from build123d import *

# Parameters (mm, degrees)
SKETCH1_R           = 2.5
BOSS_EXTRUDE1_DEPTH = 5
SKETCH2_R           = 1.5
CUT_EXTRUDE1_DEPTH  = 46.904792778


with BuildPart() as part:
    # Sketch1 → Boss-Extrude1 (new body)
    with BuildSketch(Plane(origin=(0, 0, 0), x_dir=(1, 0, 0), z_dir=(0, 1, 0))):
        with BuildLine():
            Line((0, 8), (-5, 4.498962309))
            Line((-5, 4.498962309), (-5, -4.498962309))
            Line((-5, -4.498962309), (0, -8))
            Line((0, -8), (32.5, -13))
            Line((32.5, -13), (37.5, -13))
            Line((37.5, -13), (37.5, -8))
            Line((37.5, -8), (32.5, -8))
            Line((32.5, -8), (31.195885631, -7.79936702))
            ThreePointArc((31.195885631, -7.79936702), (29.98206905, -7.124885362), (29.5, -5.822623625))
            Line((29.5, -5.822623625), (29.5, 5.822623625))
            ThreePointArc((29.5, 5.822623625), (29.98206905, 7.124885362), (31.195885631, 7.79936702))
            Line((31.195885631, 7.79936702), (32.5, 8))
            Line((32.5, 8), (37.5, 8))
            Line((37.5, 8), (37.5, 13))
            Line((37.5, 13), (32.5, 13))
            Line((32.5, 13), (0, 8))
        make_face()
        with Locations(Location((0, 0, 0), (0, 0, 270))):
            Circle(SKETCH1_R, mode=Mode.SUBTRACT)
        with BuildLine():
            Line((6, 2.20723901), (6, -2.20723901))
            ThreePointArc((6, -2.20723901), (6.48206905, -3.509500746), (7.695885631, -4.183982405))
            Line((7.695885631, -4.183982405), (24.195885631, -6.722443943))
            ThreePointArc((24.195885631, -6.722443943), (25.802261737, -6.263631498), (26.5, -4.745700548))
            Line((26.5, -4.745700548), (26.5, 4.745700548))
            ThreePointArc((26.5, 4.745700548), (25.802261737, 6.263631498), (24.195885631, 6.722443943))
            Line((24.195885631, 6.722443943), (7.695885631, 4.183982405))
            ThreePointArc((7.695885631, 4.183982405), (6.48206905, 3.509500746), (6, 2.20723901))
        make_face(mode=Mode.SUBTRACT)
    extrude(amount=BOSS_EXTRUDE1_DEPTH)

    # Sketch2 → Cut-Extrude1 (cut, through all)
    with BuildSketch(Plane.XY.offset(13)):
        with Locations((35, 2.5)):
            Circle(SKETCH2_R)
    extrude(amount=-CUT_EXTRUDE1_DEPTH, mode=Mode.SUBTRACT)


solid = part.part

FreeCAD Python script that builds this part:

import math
import FreeCAD as App
import Part
import Sketcher
Q = App.Units.Quantity

doc = App.newDocument("Part")
body = doc.addObject("PartDesign::Body", "Body")

# Sketch on XZ plane
sketch1 = body.newObject("Sketcher::SketchObject", "Sketch")
sketch1.AttachmentSupport = (doc.getObject("XZ_Plane"), [""])
sketch1.MapMode = "FlatFace"
sketch1.addGeometry(Part.LineSegment(App.Vector(0, -8, 0), App.Vector(-5, -4.5, 0)), False)
sketch1.addGeometry(Part.LineSegment(App.Vector(-5, -4.5, 0), App.Vector(-5, 4.5, 0)), False)
sketch1.addGeometry(Part.LineSegment(App.Vector(-5, 4.5, 0), App.Vector(0, 8, 0)), False)
sketch1.addGeometry(Part.LineSegment(App.Vector(0, 8, 0), App.Vector(32.5, 13, 0)), False)
sketch1.addGeometry(Part.LineSegment(App.Vector(32.5, 13, 0), App.Vector(37.5, 13, 0)), False)
sketch1.addGeometry(Part.LineSegment(App.Vector(37.5, 13, 0), App.Vector(37.5, 8, 0)), False)
sketch1.addGeometry(Part.LineSegment(App.Vector(37.5, 8, 0), App.Vector(32.5, 8, 0)), False)
sketch1.addGeometry(Part.LineSegment(App.Vector(32.5, 8, 0), App.Vector(31.2, 7.8, 0)), False)
sketch1.addGeometry(Part.ArcOfCircle(Part.Circle(App.Vector(31.5, 5.8, 0), App.Vector(0, 0, 1), 2), math.radians(99), math.radians(180)), False)
sketch1.addGeometry(Part.LineSegment(App.Vector(29.5, 5.8, 0), App.Vector(29.5, -5.8, 0)), False)
sketch1.addGeometry(Part.ArcOfCircle(Part.Circle(App.Vector(31.5, -5.8, 0), App.Vector(0, 0, 1), 2), math.radians(180), math.radians(261)), False)
sketch1.addGeometry(Part.LineSegment(App.Vector(31.2, -7.8, 0), App.Vector(32.5, -8, 0)), False)
sketch1.addGeometry(Part.LineSegment(App.Vector(32.5, -8, 0), App.Vector(37.5, -8, 0)), False)
sketch1.addGeometry(Part.LineSegment(App.Vector(37.5, -8, 0), App.Vector(37.5, -13, 0)), False)
sketch1.addGeometry(Part.LineSegment(App.Vector(37.5, -13, 0), App.Vector(32.5, -13, 0)), False)
sketch1.addGeometry(Part.LineSegment(App.Vector(32.5, -13, 0), App.Vector(0, -8, 0)), False)
sketch1.addGeometry(Part.Circle(App.Vector(0, 0, 0), App.Vector(0, 0, 1), 2.5), False)
sketch1.addGeometry(Part.LineSegment(App.Vector(6, 2.2, 0), App.Vector(6, -2.2, 0)), False)
sketch1.addGeometry(Part.ArcOfCircle(Part.Circle(App.Vector(8, -2.2, 0), App.Vector(0, 0, 1), 2), math.radians(-180), math.radians(-99)), False)
sketch1.addGeometry(Part.LineSegment(App.Vector(7.7, -4.2, 0), App.Vector(24.2, -6.7, 0)), False)
sketch1.addGeometry(Part.ArcOfCircle(Part.Circle(App.Vector(24.5, -4.7, 0), App.Vector(0, 0, 1), 2), math.radians(-99), math.radians(0)), False)
sketch1.addGeometry(Part.LineSegment(App.Vector(26.5, -4.7, 0), App.Vector(26.5, 4.7, 0)), False)
sketch1.addGeometry(Part.ArcOfCircle(Part.Circle(App.Vector(24.5, 4.7, 0), App.Vector(0, 0, 1), 2), math.radians(0), math.radians(99)), False)
sketch1.addGeometry(Part.LineSegment(App.Vector(24.2, 6.7, 0), App.Vector(7.7, 4.2, 0)), False)
sketch1.addGeometry(Part.ArcOfCircle(Part.Circle(App.Vector(8, 2.2, 0), App.Vector(0, 0, 1), 2), math.radians(99), math.radians(180)), False)
sketch1.addConstraint(Sketcher.Constraint("Coincident", 0, 2, 1, 1))
sketch1.addConstraint(Sketcher.Constraint("Coincident", 1, 2, 2, 1))
sketch1.addConstraint(Sketcher.Constraint("Coincident", 2, 2, 3, 1))
sketch1.addConstraint(Sketcher.Constraint("Coincident", 3, 2, 4, 1))
sketch1.addConstraint(Sketcher.Constraint("Coincident", 4, 2, 5, 1))
sketch1.addConstraint(Sketcher.Constraint("Coincident", 5, 2, 6, 1))
sketch1.addConstraint(Sketcher.Constraint("Coincident", 6, 2, 7, 1))
sketch1.addConstraint(Sketcher.Constraint("Tangent", 7, 2, 8, 1))
sketch1.addConstraint(Sketcher.Constraint("Tangent", 8, 2, 9, 1))
sketch1.addConstraint(Sketcher.Constraint("Tangent", 9, 2, 10, 1))
sketch1.addConstraint(Sketcher.Constraint("Tangent", 10, 2, 11, 1))
sketch1.addConstraint(Sketcher.Constraint("Coincident", 11, 2, 12, 1))
sketch1.addConstraint(Sketcher.Constraint("Coincident", 12, 2, 13, 1))
sketch1.addConstraint(Sketcher.Constraint("Coincident", 13, 2, 14, 1))
sketch1.addConstraint(Sketcher.Constraint("Coincident", 14, 2, 15, 1))
sketch1.addConstraint(Sketcher.Constraint("Coincident", 15, 2, 0, 1))
sketch1.addConstraint(Sketcher.Constraint("Tangent", 17, 2, 18, 1))
sketch1.addConstraint(Sketcher.Constraint("Tangent", 18, 2, 19, 1))
sketch1.addConstraint(Sketcher.Constraint("Tangent", 19, 2, 20, 1))
sketch1.addConstraint(Sketcher.Constraint("Tangent", 20, 2, 21, 1))
sketch1.addConstraint(Sketcher.Constraint("Tangent", 21, 2, 22, 1))
sketch1.addConstraint(Sketcher.Constraint("Tangent", 22, 2, 23, 1))
sketch1.addConstraint(Sketcher.Constraint("Tangent", 23, 2, 24, 1))
sketch1.addConstraint(Sketcher.Constraint("Tangent", 24, 2, 17, 1))
sketch1.addConstraint(Sketcher.Constraint("Vertical", 1))
sketch1.addConstraint(Sketcher.Constraint("Horizontal", 4))
sketch1.addConstraint(Sketcher.Constraint("Vertical", 5))
sketch1.addConstraint(Sketcher.Constraint("Horizontal", 6))
sketch1.addConstraint(Sketcher.Constraint("Vertical", 9))
sketch1.addConstraint(Sketcher.Constraint("Horizontal", 12))
sketch1.addConstraint(Sketcher.Constraint("Vertical", 13))
sketch1.addConstraint(Sketcher.Constraint("Horizontal", 14))
sketch1.addConstraint(Sketcher.Constraint("Vertical", 17))
sketch1.addConstraint(Sketcher.Constraint("Vertical", 21))
sketch1.addConstraint(Sketcher.Constraint("Coincident", 16, 3, -1, 1))
sketch1.addConstraint(Sketcher.Constraint("Equal", 8, 10))
sketch1.addConstraint(Sketcher.Constraint("Equal", 10, 18))
sketch1.addConstraint(Sketcher.Constraint("Equal", 18, 20))
sketch1.addConstraint(Sketcher.Constraint("Equal", 20, 22))
sketch1.addConstraint(Sketcher.Constraint("Equal", 22, 24))
sketch1.addConstraint(Sketcher.Constraint("Symmetric", 2, 2, 15, 2, -1, 1))
sketch1.addConstraint(Sketcher.Constraint("Symmetric", 7, 2, 10, 2, -1))
sketch1.addConstraint(Sketcher.Constraint("Symmetric", 5, 2, 12, 2, -1))
sketch1.addConstraint(Sketcher.Constraint("Symmetric", 3, 2, 14, 2, -1))
sketch1.addConstraint(Sketcher.Constraint("Symmetric", 19, 2, 22, 2, -1))
sketch1.addConstraint(Sketcher.Constraint("PointOnObject", 2, 2, -2))
sketch1.addConstraint(Sketcher.Constraint("Parallel", 3, 7))
sketch1.addConstraint(Sketcher.Constraint("Parallel", 15, 19))
sketch1.addConstraint(Sketcher.Constraint("Horizontal", 2, 2, 5, 2))
sketch1.addConstraint(Sketcher.Constraint("Vertical", 3, 2, 6, 2))
sketch1.addConstraint(Sketcher.Constraint("Equal", 14, 5))
sketch1.addConstraint(Sketcher.Constraint("Equal", 0, 2))
sketch1.addConstraint(Sketcher.Constraint("Diameter", 16, 5.0))
sketch1.addConstraint(Sketcher.Constraint("Radius", 8, 2.0))
sketch1.addConstraint(Sketcher.Constraint("DistanceX", 4, 1, 4, 2, 5.0))
sketch1.addConstraint(Sketcher.Constraint("Angle", 0, Q("145 deg")))
sketch1.addConstraint(Sketcher.Constraint("DistanceX", -1, 1, 18, 3, 8.0))
sketch1.addConstraint(Sketcher.Constraint("DistanceX", 0, 2, -1, 1, 5.0))
sketch1.addConstraint(Sketcher.Constraint("DistanceY", -1, 1, 2, 2, 8.0))
sketch1.addConstraint(Sketcher.Constraint("DistanceX", 20, 3, 10, 3, 7.0))
sketch1.addConstraint(Sketcher.Constraint("DistanceX", 8, 3, 3, 2, 1.0))
sketch1.addConstraint(Sketcher.Constraint("DistanceX", -1, 1, 8, 3, 31.5))
sketch1.addConstraint(Sketcher.Constraint("DistanceY", 21, 1, 21, 2, 9.491401))
pad1 = body.newObject("PartDesign::Pad", "Pad")
pad1.Profile = sketch1
pad1.Length = 5
pad1.Reversed = True

# Sketch on XY plane
sketch2 = body.newObject("Sketcher::SketchObject", "Sketch001")
sketch2.AttachmentSupport = (doc.getObject("XY_Plane"), [""])
sketch2.MapMode = "FlatFace"
sketch2.AttachmentOffset = App.Placement(App.Vector(0, 0, 13), App.Rotation())
sketch2.addGeometry(Part.Circle(App.Vector(35, 2.5, 0), App.Vector(0, 0, 1), 1.5), False)
sketch2.addConstraint(Sketcher.Constraint("Diameter", 0, 3.0))
sketch2.addConstraint(Sketcher.Constraint("DistanceX", -1, 1, 0, 3, 35.0))
sketch2.addConstraint(Sketcher.Constraint("DistanceY", -1, 1, 0, 3, 2.5))
pocket1 = body.newObject("PartDesign::Pocket", "Pocket")
pocket1.Profile = sketch2
pocket1.Type = "ThroughAll"

doc.recompute()
